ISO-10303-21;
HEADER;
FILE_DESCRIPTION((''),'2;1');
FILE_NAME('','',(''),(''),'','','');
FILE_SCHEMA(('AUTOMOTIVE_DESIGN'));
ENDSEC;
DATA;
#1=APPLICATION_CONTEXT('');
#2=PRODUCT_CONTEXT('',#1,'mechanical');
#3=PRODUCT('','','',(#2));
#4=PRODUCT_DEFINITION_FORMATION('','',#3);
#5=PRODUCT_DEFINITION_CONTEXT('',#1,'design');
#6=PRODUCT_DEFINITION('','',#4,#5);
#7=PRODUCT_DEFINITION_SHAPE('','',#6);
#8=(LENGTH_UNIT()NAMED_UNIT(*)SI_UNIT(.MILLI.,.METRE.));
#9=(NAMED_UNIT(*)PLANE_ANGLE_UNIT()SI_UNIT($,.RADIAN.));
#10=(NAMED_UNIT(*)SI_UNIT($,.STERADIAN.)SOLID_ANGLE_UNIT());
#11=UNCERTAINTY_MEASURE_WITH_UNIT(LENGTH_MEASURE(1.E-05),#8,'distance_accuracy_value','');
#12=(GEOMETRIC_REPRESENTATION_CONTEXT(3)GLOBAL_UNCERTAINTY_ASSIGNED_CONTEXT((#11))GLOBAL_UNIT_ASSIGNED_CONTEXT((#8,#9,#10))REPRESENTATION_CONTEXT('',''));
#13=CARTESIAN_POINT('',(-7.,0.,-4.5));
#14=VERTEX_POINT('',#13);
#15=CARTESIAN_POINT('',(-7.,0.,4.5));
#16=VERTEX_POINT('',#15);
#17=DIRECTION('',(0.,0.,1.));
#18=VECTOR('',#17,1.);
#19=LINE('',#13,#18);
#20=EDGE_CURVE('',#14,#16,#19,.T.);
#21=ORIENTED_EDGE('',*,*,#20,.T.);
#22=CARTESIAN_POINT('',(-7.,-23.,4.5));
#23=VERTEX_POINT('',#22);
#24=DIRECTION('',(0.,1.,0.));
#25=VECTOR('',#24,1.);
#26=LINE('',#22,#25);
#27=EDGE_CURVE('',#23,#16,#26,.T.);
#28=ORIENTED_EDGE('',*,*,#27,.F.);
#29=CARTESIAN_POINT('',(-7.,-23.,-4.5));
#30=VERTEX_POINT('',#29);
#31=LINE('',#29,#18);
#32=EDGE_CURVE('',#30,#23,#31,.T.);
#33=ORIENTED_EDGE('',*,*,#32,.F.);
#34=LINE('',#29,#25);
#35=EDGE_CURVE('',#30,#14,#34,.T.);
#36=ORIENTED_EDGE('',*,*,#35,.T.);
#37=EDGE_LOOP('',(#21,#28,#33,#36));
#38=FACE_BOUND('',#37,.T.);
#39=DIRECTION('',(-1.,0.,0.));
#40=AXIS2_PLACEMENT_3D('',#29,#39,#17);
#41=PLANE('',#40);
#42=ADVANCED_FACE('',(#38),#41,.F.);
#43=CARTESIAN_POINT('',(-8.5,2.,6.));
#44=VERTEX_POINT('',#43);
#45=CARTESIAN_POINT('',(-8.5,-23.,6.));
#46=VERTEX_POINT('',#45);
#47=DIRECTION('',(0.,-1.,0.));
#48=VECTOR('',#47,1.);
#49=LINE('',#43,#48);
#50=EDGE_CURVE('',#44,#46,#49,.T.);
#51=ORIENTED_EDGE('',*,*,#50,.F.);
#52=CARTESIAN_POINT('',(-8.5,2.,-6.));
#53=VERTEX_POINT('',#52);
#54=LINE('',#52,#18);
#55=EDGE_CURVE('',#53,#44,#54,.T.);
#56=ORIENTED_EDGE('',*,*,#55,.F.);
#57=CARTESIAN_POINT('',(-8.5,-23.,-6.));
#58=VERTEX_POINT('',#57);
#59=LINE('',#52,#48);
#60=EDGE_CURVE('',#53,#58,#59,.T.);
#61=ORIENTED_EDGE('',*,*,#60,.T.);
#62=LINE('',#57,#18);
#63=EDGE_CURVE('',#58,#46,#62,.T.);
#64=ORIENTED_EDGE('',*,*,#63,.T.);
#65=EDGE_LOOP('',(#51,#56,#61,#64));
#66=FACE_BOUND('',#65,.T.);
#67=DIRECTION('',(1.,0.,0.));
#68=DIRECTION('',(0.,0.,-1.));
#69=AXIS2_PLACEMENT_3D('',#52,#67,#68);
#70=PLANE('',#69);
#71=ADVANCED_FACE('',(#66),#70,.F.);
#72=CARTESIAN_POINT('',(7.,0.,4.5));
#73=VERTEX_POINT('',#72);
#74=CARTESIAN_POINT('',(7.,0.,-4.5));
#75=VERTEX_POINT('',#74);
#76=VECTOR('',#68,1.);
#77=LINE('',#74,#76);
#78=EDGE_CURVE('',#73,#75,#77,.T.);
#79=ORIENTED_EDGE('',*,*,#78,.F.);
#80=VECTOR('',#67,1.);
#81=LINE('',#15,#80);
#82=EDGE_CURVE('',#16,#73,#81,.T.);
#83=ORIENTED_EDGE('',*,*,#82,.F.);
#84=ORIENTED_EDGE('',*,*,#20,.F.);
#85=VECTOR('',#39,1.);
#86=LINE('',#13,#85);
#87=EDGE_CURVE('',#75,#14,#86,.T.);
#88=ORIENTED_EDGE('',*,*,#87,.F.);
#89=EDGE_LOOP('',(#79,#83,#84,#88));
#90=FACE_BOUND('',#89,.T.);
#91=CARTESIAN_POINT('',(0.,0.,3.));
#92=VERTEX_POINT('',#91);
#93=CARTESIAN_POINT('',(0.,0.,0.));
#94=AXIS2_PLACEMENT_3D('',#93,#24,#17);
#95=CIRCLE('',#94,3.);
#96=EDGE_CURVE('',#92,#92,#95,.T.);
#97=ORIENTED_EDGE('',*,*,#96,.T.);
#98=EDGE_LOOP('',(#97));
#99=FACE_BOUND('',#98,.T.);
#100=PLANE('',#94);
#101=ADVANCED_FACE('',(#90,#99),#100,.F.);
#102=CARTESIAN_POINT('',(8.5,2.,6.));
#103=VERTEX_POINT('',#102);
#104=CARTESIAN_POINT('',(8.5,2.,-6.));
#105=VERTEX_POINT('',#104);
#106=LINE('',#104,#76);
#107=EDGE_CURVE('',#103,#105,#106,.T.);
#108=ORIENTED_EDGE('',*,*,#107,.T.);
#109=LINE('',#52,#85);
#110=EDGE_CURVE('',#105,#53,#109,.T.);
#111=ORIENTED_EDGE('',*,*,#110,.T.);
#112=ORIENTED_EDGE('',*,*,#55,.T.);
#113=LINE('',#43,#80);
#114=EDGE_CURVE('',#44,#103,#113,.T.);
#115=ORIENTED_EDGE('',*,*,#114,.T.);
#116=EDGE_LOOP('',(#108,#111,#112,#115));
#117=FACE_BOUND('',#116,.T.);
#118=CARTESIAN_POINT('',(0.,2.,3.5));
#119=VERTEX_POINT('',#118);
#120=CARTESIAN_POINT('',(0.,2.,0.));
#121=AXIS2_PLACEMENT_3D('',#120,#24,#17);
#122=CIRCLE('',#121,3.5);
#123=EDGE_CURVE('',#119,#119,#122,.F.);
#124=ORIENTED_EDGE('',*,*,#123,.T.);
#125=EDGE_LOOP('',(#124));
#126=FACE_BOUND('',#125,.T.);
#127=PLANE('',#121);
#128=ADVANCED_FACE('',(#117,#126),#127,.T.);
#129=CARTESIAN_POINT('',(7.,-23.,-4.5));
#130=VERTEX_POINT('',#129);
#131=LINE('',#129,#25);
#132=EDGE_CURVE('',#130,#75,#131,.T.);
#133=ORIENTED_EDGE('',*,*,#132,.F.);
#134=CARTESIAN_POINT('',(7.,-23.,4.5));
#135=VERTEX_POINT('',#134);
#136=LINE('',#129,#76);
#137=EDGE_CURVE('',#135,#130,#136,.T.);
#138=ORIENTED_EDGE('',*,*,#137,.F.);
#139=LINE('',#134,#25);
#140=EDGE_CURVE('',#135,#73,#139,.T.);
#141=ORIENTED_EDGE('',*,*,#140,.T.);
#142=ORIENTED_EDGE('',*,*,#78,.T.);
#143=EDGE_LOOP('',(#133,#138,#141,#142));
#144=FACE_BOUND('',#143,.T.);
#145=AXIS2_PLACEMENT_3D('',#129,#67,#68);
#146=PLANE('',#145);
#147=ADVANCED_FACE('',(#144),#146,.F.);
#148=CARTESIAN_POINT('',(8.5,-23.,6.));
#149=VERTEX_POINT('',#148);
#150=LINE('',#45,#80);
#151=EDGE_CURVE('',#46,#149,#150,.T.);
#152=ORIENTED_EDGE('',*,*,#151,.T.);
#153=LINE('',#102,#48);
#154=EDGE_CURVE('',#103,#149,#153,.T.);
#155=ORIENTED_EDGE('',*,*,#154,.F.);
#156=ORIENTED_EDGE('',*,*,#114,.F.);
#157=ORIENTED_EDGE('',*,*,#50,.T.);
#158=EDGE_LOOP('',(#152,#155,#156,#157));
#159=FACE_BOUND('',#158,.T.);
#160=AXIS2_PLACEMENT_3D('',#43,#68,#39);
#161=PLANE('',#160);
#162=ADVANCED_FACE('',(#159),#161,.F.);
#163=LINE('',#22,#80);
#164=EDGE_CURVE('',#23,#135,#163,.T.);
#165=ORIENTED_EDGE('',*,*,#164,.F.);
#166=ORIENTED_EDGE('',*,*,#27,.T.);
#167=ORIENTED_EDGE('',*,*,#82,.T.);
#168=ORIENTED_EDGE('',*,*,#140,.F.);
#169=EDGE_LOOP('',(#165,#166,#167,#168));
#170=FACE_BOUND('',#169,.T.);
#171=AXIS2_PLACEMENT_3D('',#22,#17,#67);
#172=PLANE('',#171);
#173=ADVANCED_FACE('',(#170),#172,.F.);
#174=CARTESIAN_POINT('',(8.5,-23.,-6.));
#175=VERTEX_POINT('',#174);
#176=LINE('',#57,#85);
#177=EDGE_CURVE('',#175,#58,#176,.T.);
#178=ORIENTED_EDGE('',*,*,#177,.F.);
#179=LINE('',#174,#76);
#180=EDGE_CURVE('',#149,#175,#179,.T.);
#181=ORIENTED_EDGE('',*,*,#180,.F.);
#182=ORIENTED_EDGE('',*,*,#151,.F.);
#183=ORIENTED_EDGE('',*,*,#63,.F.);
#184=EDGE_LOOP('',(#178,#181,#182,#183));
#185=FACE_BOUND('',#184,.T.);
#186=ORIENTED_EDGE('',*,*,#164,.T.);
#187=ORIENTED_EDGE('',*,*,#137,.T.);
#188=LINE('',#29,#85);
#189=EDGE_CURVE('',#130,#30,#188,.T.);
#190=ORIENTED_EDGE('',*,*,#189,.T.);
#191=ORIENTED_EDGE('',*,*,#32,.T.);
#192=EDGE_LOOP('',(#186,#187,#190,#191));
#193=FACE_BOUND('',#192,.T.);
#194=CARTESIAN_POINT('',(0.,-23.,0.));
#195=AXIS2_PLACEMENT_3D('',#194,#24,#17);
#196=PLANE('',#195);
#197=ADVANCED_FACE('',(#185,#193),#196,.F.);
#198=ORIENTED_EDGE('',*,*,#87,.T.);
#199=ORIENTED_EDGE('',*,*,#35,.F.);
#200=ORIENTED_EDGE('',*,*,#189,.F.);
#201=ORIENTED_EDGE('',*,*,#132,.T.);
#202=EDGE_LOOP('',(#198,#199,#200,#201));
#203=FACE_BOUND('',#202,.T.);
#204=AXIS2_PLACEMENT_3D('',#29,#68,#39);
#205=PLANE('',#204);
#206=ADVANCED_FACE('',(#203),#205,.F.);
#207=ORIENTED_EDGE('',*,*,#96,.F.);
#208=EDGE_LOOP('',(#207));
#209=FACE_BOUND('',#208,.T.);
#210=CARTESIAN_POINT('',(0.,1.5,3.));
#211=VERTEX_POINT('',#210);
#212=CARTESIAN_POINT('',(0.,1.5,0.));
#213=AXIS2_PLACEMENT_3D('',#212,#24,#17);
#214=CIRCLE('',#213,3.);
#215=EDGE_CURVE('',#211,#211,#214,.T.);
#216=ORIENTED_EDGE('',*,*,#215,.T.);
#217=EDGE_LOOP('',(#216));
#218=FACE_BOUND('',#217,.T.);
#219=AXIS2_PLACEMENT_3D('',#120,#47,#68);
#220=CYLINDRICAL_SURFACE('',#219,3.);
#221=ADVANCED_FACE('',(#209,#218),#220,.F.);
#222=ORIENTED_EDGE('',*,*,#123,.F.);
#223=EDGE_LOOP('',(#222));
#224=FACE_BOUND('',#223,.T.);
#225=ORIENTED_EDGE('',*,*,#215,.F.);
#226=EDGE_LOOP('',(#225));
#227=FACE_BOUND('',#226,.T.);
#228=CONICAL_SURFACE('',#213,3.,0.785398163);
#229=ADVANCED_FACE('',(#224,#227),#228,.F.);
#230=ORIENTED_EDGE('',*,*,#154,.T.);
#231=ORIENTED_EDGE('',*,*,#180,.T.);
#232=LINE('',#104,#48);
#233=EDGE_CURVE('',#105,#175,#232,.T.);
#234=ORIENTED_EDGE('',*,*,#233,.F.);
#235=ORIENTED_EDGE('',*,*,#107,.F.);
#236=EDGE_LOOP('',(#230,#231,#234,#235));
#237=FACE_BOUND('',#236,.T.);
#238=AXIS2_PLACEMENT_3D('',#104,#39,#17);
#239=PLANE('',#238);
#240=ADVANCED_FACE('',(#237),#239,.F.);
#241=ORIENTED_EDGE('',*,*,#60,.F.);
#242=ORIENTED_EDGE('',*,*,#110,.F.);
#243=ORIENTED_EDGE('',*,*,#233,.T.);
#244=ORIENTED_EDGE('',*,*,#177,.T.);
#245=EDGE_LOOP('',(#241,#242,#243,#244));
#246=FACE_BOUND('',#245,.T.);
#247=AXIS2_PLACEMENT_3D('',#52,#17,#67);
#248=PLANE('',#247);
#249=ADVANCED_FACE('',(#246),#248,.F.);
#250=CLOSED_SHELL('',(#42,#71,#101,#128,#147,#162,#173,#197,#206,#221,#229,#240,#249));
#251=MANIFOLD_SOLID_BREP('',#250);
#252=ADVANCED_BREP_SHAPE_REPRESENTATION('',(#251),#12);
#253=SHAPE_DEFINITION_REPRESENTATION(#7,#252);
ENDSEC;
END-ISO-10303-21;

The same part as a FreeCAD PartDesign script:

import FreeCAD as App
import Part
import Sketcher

V = App.Vector


def edges_at(feature, points):
    """Names of the edges that pass closest to the given points."""
    edges = feature.Shape.Edges
    near = lambda p: min(range(len(edges)), key=lambda i: edges[i].distToShape(Part.Vertex(*p))[0])
    return sorted({f"Edge{near(p) + 1}" for p in points})

doc = App.newDocument("Part")
body = doc.addObject("PartDesign::Body", "Body")

sketch1 = doc.addObject("Sketcher::SketchObject", "Sketch")
body.addObject(sketch1)
sketch1.AttachmentSupport = (doc.XZ_Plane, [""])
sketch1.MapMode = "FlatFace"
sketch1.addGeometry(Part.LineSegment(V(-8.5, -6, 0), V(-8.5, 6, 0)), False)
sketch1.addGeometry(Part.LineSegment(V(-8.5, 6, 0), V(8.5, 6, 0)), False)
sketch1.addGeometry(Part.LineSegment(V(8.5, 6, 0), V(8.5, -6, 0)), False)
sketch1.addGeometry(Part.LineSegment(V(8.5, -6, 0), V(-8.5, -6, 0)), False)
sketch1.addGeometry(Part.Circle(V(0, 0, 0), V(0, 0, 1), 3), False)
sketch1.addConstraint(Sketcher.Constraint("Coincident", 0, 2, 1, 1))
sketch1.addConstraint(Sketcher.Constraint("Coincident", 1, 2, 2, 1))
sketch1.addConstraint(Sketcher.Constraint("Coincident", 2, 2, 3, 1))
sketch1.addConstraint(Sketcher.Constraint("Coincident", 3, 2, 0, 1))
sketch1.addConstraint(Sketcher.Constraint("Vertical", 0))
sketch1.addConstraint(Sketcher.Constraint("Horizontal", 1))
sketch1.addConstraint(Sketcher.Constraint("Vertical", 2))
sketch1.addConstraint(Sketcher.Constraint("Horizontal", 3))
sketch1.addConstraint(Sketcher.Constraint("Coincident", 4, 3, -1, 1))
sketch1.addConstraint(Sketcher.Constraint("Symmetric", 0, 2, 2, 2, -1, 1))
sketch1.addConstraint(Sketcher.Constraint("Diameter", 4, 6.0))
sketch1.addConstraint(Sketcher.Constraint("DistanceX", 1, 1, 1, 2, 17.0))
sketch1.addConstraint(Sketcher.Constraint("DistanceY", 0, 1, 0, 2, 12.0))
pad1 = doc.addObject("PartDesign::Pad", "Pad")
body.addObject(pad1)
pad1.Profile = sketch1
pad1.Length = 2
pad1.Reversed = True

sketch2 = doc.addObject("Sketcher::SketchObject", "Sketch001")
body.addObject(sketch2)
sketch2.AttachmentSupport = (doc.XZ_Plane, [""])
sketch2.MapMode = "FlatFace"
sketch2.addGeometry(Part.LineSegment(V(-8.5, -6, 0), V(-8.5, 6, 0)), False)
sketch2.addGeometry(Part.LineSegment(V(-8.5, 6, 0), V(8.5, 6, 0)), False)
sketch2.addGeometry(Part.LineSegment(V(8.5, 6, 0), V(8.5, -6, 0)), False)
sketch2.addGeometry(Part.LineSegment(V(8.5, -6, 0), V(-8.5, -6, 0)), False)
sketch2.addGeometry(Part.LineSegment(V(7, 4.5, 0), V(-7, 4.5, 0)), False)
sketch2.addGeometry(Part.LineSegment(V(-7, 4.5, 0), V(-7, -4.5, 0)), False)
sketch2.addGeometry(Part.LineSegment(V(-7, -4.5, 0), V(7, -4.5, 0)), False)
sketch2.addGeometry(Part.LineSegment(V(7, -4.5, 0), V(7, 4.5, 0)), False)
sketch2.addConstraint(Sketcher.Constraint("Coincident", 0, 2, 1, 1))
sketch2.addConstraint(Sketcher.Constraint("Coincident", 1, 2, 2, 1))
sketch2.addConstraint(Sketcher.Constraint("Coincident", 2, 2, 3, 1))
sketch2.addConstraint(Sketcher.Constraint("Coincident", 3, 2, 0, 1))
sketch2.addConstraint(Sketcher.Constraint("Coincident", 4, 2, 5, 1))
sketch2.addConstraint(Sketcher.Constraint("Coincident", 5, 2, 6, 1))
sketch2.addConstraint(Sketcher.Constraint("Coincident", 6, 2, 7, 1))
sketch2.addConstraint(Sketcher.Constraint("Coincident", 7, 2, 4, 1))
sketch2.addConstraint(Sketcher.Constraint("Vertical", 0))
sketch2.addConstraint(Sketcher.Constraint("Horizontal", 1))
sketch2.addConstraint(Sketcher.Constraint("Vertical", 2))
sketch2.addConstraint(Sketcher.Constraint("Horizontal", 3))
sketch2.addConstraint(Sketcher.Constraint("Horizontal", 4))
sketch2.addConstraint(Sketcher.Constraint("Vertical", 5))
sketch2.addConstraint(Sketcher.Constraint("Horizontal", 6))
sketch2.addConstraint(Sketcher.Constraint("Vertical", 7))
sketch2.addConstraint(Sketcher.Constraint("Symmetric", 0, 2, 2, 2, -1, 1))
sketch2.addConstraint(Sketcher.Constraint("Symmetric", 4, 2, 6, 2, -1, 1))
sketch2.addConstraint(Sketcher.Constraint("DistanceX", 1, 1, 1, 2, 17.0))
sketch2.addConstraint(Sketcher.Constraint("DistanceX", 4, 2, 4, 1, 14.0))
sketch2.addConstraint(Sketcher.Constraint("DistanceY", 0, 1, 0, 2, 12.0))
sketch2.addConstraint(Sketcher.Constraint("DistanceY", 5, 2, 5, 1, 9.0))
pad2 = doc.addObject("PartDesign::Pad", "Pad001")
body.addObject(pad2)
pad2.Profile = sketch2
pad2.Length = 23
doc.recompute()

chamfer = doc.addObject("PartDesign::Chamfer", "Chamfer")
body.addObject(chamfer)
chamfer.Base = (pad2, edges_at(pad2, [(0, 2, -3)]))
chamfer.Size = 0.5

doc.recompute()
